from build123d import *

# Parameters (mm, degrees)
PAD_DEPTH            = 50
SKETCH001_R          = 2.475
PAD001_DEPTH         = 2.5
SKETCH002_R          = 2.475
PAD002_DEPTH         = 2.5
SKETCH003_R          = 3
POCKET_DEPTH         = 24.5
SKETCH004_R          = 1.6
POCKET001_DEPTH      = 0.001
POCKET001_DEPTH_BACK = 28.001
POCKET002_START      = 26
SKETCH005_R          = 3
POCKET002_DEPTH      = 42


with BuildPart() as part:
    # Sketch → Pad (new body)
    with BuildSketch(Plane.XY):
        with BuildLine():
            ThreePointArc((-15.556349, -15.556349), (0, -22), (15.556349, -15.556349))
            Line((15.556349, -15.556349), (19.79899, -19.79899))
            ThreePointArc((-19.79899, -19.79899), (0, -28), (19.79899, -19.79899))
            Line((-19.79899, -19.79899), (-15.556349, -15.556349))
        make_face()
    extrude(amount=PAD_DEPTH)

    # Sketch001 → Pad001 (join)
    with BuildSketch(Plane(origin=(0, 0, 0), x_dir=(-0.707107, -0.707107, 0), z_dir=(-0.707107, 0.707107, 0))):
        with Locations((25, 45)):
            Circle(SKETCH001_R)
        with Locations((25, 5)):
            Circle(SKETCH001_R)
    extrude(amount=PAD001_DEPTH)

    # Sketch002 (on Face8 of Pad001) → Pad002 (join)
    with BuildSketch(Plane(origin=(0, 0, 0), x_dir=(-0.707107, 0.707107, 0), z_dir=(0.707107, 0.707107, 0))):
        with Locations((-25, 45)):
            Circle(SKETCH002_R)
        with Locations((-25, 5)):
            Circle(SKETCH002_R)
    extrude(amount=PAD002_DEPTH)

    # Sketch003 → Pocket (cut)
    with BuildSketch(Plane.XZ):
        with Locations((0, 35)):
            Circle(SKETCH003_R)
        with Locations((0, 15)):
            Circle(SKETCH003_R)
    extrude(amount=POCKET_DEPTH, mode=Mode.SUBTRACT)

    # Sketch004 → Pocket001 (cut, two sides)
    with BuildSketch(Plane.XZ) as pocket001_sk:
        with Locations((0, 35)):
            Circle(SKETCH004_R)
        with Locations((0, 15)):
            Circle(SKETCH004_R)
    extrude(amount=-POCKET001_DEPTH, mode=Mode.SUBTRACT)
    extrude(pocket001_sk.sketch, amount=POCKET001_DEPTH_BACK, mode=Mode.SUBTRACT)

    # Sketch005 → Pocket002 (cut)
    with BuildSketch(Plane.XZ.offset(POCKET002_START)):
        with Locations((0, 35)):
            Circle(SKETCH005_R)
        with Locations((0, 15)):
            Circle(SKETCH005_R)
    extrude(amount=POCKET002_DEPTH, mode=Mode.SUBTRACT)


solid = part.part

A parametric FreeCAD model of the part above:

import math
import FreeCAD as App
import Part
import Sketcher

doc = App.newDocument("Part")
body = doc.addObject("PartDesign::Body", "Body")

# Sketch on XY plane
sketch1 = body.newObject("Sketcher::SketchObject", "Sketch")
sketch1.AttachmentSupport = (doc.getObject("XY_Plane"), [""])
sketch1.MapMode = "FlatFace"
sketch1.addGeometry(Part.ArcOfCircle(Part.Circle(App.Vector(0, 0, 0), App.Vector(0, 0, 1), 22), math.radians(-135), math.radians(-45)), False)
sketch1.addGeometry(Part.LineSegment(App.Vector(-16, -16, 0), App.Vector(-20, -20, 0)), False)
sketch1.addGeometry(Part.ArcOfCircle(Part.Circle(App.Vector(0, 0, 0), App.Vector(0, 0, 1), 28), math.radians(-135), math.radians(-45)), False)
sketch1.addGeometry(Part.LineSegment(App.Vector(20, -20, 0), App.Vector(16, -16, 0)), False)
sketch1.addConstraint(Sketcher.Constraint("Coincident", 0, 1, 1, 1))
sketch1.addConstraint(Sketcher.Constraint("Coincident", 1, 2, 2, 1))
sketch1.addConstraint(Sketcher.Constraint("Coincident", 2, 2, 3, 1))
sketch1.addConstraint(Sketcher.Constraint("Coincident", 3, 2, 0, 2))
sketch1.addConstraint(Sketcher.Constraint("Coincident", 0, 3, -1, 1))
sketch1.addConstraint(Sketcher.Constraint("Coincident", 2, 3, -1, 1))
sketch1.addConstraint(Sketcher.Constraint("Perpendicular", 1, 3))
sketch1.addConstraint(Sketcher.Constraint("Horizontal", 1, 2, 2, 2))
sketch1.addConstraint(Sketcher.Constraint("Horizontal", 0, 1, 3, 2))
sketch1.addConstraint(Sketcher.Constraint("Radius", 0, 21.999999))
sketch1.addConstraint(Sketcher.Constraint("Radius", 2, 28.000001))
sketch1.addConstraint(Sketcher.Constraint("DistanceX", 0, 1, -1, 1, 15.556349))
pad1 = body.newObject("PartDesign::Pad", "Pad")
pad1.Profile = sketch1
pad1.Length = 50

# Sketch on an angled plane
sketch2 = body.newObject("Sketcher::SketchObject", "Sketch001")
sketch2.Placement = App.Placement(App.Vector(0, 0, 0), App.Rotation(App.Vector(-0.707106781, -0.707106781, 0), App.Vector(0, 0, 0.999999999), App.Vector(-0.707106781, 0.707106781, 0), "ZXY"))
sketch2.addGeometry(Part.Circle(App.Vector(25, 45, 0), App.Vector(0, 0, 1), 2.5), False)
sketch2.addGeometry(Part.Circle(App.Vector(25, 5, 0), App.Vector(0, 0, 1), 2.5), False)
sketch2.addConstraint(Sketcher.Constraint("Equal", 0, 1))
sketch2.addConstraint(Sketcher.Constraint("Vertical", 0, 3, 1, 3))
sketch2.addConstraint(Sketcher.Constraint("Diameter", 0, 4.95))
sketch2.addConstraint(Sketcher.Constraint("DistanceX", -1, 1, 0, 3, 25.0))
sketch2.addConstraint(Sketcher.Constraint("DistanceY", -1, 1, 0, 3, 45.0))
sketch2.addConstraint(Sketcher.Constraint("DistanceY", -1, 1, 1, 3, 5.0))
pad2 = body.newObject("PartDesign::Pad", "Pad001")
pad2.Profile = sketch2
pad2.Length = 2.5

# Sketch on an angled plane
sketch3 = body.newObject("Sketcher::SketchObject", "Sketch002")
sketch3.Placement = App.Placement(App.Vector(0, 0, 0), App.Rotation(App.Vector(-0.707106781, 0.707106781, 0), App.Vector(0, 0, 0.999999999), App.Vector(0.707106781, 0.707106781, 0), "ZXY"))
sketch3.addGeometry(Part.Circle(App.Vector(-25, 45, 0), App.Vector(0, 0, 1), 2.5), False)
sketch3.addGeometry(Part.Circle(App.Vector(-25, 5, 0), App.Vector(0, 0, 1), 2.5), False)
sketch3.addConstraint(Sketcher.Constraint("Equal", 0, 1))
sketch3.addConstraint(Sketcher.Constraint("Vertical", 0, 3, 1, 3))
sketch3.addConstraint(Sketcher.Constraint("Diameter", 0, 4.95))
sketch3.addConstraint(Sketcher.Constraint("DistanceX", 0, 3, -1, 1, 25.0))
sketch3.addConstraint(Sketcher.Constraint("DistanceY", -1, 1, 0, 3, 45.0))
sketch3.addConstraint(Sketcher.Constraint("DistanceY", -1, 1, 1, 3, 5.0))
pad3 = body.newObject("PartDesign::Pad", "Pad002")
pad3.Profile = sketch3
pad3.Length = 2.5

# Sketch on XZ plane
sketch4 = body.newObject("Sketcher::SketchObject", "Sketch003")
sketch4.AttachmentSupport = (doc.getObject("XZ_Plane"), [""])
sketch4.MapMode = "FlatFace"
sketch4.addGeometry(Part.Circle(App.Vector(0, 35, 0), App.Vector(0, 0, 1), 3), False)
sketch4.addGeometry(Part.Circle(App.Vector(0, 15, 0), App.Vector(0, 0, 1), 3), False)
sketch4.addConstraint(Sketcher.Constraint("Equal", 0, 1))
sketch4.addConstraint(Sketcher.Constraint("PointOnObject", 0, 3, -2))
sketch4.addConstraint(Sketcher.Constraint("PointOnObject", 1, 3, -2))
sketch4.addConstraint(Sketcher.Constraint("Diameter", 0, 6.0))
sketch4.addConstraint(Sketcher.Constraint("DistanceY", -1, 1, 0, 3, 35.0))
sketch4.addConstraint(Sketcher.Constraint("DistanceY", -1, 1, 1, 3, 15.0))
pocket1 = body.newObject("PartDesign::Pocket", "Pocket")
pocket1.Profile = sketch4
pocket1.Length = 24.5
pocket1.Reversed = True

# Sketch on XZ plane
sketch5 = body.newObject("Sketcher::SketchObject", "Sketch004")
sketch5.AttachmentSupport = (doc.getObject("XZ_Plane"), [""])
sketch5.MapMode = "FlatFace"
sketch5.addGeometry(Part.Circle(App.Vector(0, 35, 0), App.Vector(0, 0, 1), 1.6), False)
sketch5.addGeometry(Part.Circle(App.Vector(0, 15, 0), App.Vector(0, 0, 1), 1.6), False)
sketch5.addConstraint(Sketcher.Constraint("Equal", 0, 1))
sketch5.addConstraint(Sketcher.Constraint("PointOnObject", 0, 3, -2))
sketch5.addConstraint(Sketcher.Constraint("PointOnObject", 1, 3, -2))
sketch5.addConstraint(Sketcher.Constraint("Diameter", 0, 3.2))
sketch5.addConstraint(Sketcher.Constraint("DistanceY", -1, 1, 0, 3, 35.0))
sketch5.addConstraint(Sketcher.Constraint("DistanceY", -1, 1, 1, 3, 15.0))
pocket2 = body.newObject("PartDesign::Pocket", "Pocket001")
pocket2.Profile = sketch5
pocket2.Type = "ThroughAll"
pocket2.Midplane = True

# Sketch on XZ plane
sketch6 = body.newObject("Sketcher::SketchObject", "Sketch005")
sketch6.AttachmentSupport = (doc.getObject("XZ_Plane"), [""])
sketch6.MapMode = "FlatFace"
sketch6.AttachmentOffset = App.Placement(App.Vector(0, 0, 26), App.Rotation())
sketch6.addGeometry(Part.Circle(App.Vector(0, 35, 0), App.Vector(0, 0, 1), 3), False)
sketch6.addGeometry(Part.Circle(App.Vector(0, 15, 0), App.Vector(0, 0, 1), 3), False)
sketch6.addConstraint(Sketcher.Constraint("Equal", 0, 1))
sketch6.addConstraint(Sketcher.Constraint("PointOnObject", 0, 3, -2))
sketch6.addConstraint(Sketcher.Constraint("PointOnObject", 1, 3, -2))
sketch6.addConstraint(Sketcher.Constraint("Diameter", 0, 6.0))
sketch6.addConstraint(Sketcher.Constraint("DistanceY", -1, 1, 0, 3, 35.0))
sketch6.addConstraint(Sketcher.Constraint("DistanceY", -1, 1, 1, 3, 15.0))
pocket3 = body.newObject("PartDesign::Pocket", "Pocket002")
pocket3.Profile = sketch6
pocket3.Length = 42
pocket3.Reversed = True

doc.recompute()
